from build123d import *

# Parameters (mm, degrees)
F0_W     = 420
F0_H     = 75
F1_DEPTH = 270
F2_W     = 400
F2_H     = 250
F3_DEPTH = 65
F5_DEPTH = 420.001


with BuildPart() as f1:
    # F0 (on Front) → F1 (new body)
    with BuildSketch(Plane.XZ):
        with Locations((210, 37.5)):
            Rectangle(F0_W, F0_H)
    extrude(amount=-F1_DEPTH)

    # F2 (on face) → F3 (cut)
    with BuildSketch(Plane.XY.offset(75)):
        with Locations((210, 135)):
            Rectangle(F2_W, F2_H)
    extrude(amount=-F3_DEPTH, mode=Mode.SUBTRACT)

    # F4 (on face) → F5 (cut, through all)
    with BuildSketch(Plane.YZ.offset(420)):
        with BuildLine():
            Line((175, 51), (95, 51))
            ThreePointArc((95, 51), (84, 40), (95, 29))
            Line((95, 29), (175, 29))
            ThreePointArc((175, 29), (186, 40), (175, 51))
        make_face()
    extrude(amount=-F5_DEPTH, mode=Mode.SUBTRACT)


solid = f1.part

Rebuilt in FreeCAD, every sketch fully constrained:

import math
import FreeCAD as App
import Part
import Sketcher
from FreeCAD import Vector
Q = App.Units.Quantity

doc = App.newDocument("Part")
body = doc.addObject("PartDesign::Body", "Body")

# Sketch on XZ plane
sketch1 = doc.addObject("Sketcher::SketchObject", "Sketch")
body.addObject(sketch1)
sketch1.AttachmentSupport = (doc.XZ_Plane, [""])
sketch1.MapMode = "FlatFace"
sketch1.addGeometry([
    Part.LineSegment(Vector(0, 75, 0), Vector(0, 0, 0)),
    Part.LineSegment(Vector(0, 0, 0), Vector(420, 0, 0)),
    Part.LineSegment(Vector(420, 0, 0), Vector(420, 75, 0)),
    Part.LineSegment(Vector(420, 75, 0), Vector(0, 75, 0)),
], False)
sketch1.addConstraint([
    Sketcher.Constraint("Coincident", 0, 2, 1, 1),
    Sketcher.Constraint("Coincident", 1, 2, 2, 1),
    Sketcher.Constraint("Coincident", 2, 2, 3, 1),
    Sketcher.Constraint("Coincident", 3, 2, 0, 1),
    Sketcher.Constraint("Vertical", 0),
    Sketcher.Constraint("Horizontal", 1),
    Sketcher.Constraint("Vertical", 2),
    Sketcher.Constraint("Horizontal", 3),
    Sketcher.Constraint("Coincident", 0, 2, -1, 1),
    Sketcher.Constraint("DistanceX", 1, 1, 1, 2, Q("420 mm")),
    Sketcher.Constraint("DistanceY", 0, 2, 0, 1, Q("75 mm")),
])
pad1 = doc.addObject("PartDesign::Pad", "Pad")
body.addObject(pad1)
pad1.Profile = sketch1
pad1.Length = 270
pad1.Reversed = True

# Sketch on XY plane
sketch2 = doc.addObject("Sketcher::SketchObject", "Sketch001")
body.addObject(sketch2)
sketch2.AttachmentSupport = (doc.XY_Plane, [""])
sketch2.MapMode = "FlatFace"
sketch2.AttachmentOffset = App.Placement(Vector(0, 0, 75), App.Rotation())
sketch2.addGeometry([
    Part.LineSegment(Vector(10, 260, 0), Vector(10, 10, 0)),
    Part.LineSegment(Vector(10, 10, 0), Vector(410, 10, 0)),
    Part.LineSegment(Vector(410, 10, 0), Vector(410, 260, 0)),
    Part.LineSegment(Vector(410, 260, 0), Vector(10, 260, 0)),
], False)
sketch2.addConstraint([
    Sketcher.Constraint("Coincident", 0, 2, 1, 1),
    Sketcher.Constraint("Coincident", 1, 2, 2, 1),
    Sketcher.Constraint("Coincident", 2, 2, 3, 1),
    Sketcher.Constraint("Coincident", 3, 2, 0, 1),
    Sketcher.Constraint("Vertical", 0),
    Sketcher.Constraint("Horizontal", 1),
    Sketcher.Constraint("Vertical", 2),
    Sketcher.Constraint("Horizontal", 3),
    Sketcher.Constraint("DistanceX", 1, 1, 1, 2, Q("400 mm")),
    Sketcher.Constraint("DistanceY", 0, 2, 0, 1, Q("250 mm")),
    Sketcher.Constraint("DistanceX", -1, 1, 0, 2, Q("10 mm")),
    Sketcher.Constraint("DistanceY", -1, 1, 0, 2, Q("10 mm")),
])
pocket1 = doc.addObject("PartDesign::Pocket", "Pocket")
body.addObject(pocket1)
pocket1.Profile = sketch2
pocket1.Length = 65

# Sketch on YZ plane
sketch3 = doc.addObject("Sketcher::SketchObject", "Sketch002")
body.addObject(sketch3)
sketch3.AttachmentSupport = (doc.YZ_Plane, [""])
sketch3.MapMode = "FlatFace"
sketch3.AttachmentOffset = App.Placement(Vector(0, 0, 420), App.Rotation())
sketch3.addGeometry([
    Part.LineSegment(Vector(175, 51, 0), Vector(95, 51, 0)),
    Part.ArcOfCircle(Part.Circle(Vector(95, 40, 0), Vector(0, 0, 1), 11), math.radians(90), math.radians(270)),
    Part.LineSegment(Vector(95, 29, 0), Vector(175, 29, 0)),
    Part.ArcOfCircle(Part.Circle(Vector(175, 40, 0), Vector(0, 0, 1), 11), math.radians(-90), math.radians(90)),
], False)
sketch3.addConstraint([
    Sketcher.Constraint("Tangent", 0, 2, 1, 1),
    Sketcher.Constraint("Tangent", 1, 2, 2, 1),
    Sketcher.Constraint("Tangent", 2, 2, 3, 1),
    Sketcher.Constraint("Tangent", 3, 2, 0, 1),
    Sketcher.Constraint("Horizontal", 0),
    Sketcher.Constraint("Horizontal", 2),
    Sketcher.Constraint("Radius", 1, Q("11 mm")),
    Sketcher.Constraint("DistanceX", 0, 2, 0, 1, Q("80 mm")),
    Sketcher.Constraint("DistanceX", -1, 1, 1, 3, Q("95 mm")),
    Sketcher.Constraint("DistanceY", -1, 1, 1, 3, Q("40 mm")),
])
pocket2 = doc.addObject("PartDesign::Pocket", "Pocket001")
body.addObject(pocket2)
pocket2.Profile = sketch3
pocket2.Type = "ThroughAll"

doc.recompute()
